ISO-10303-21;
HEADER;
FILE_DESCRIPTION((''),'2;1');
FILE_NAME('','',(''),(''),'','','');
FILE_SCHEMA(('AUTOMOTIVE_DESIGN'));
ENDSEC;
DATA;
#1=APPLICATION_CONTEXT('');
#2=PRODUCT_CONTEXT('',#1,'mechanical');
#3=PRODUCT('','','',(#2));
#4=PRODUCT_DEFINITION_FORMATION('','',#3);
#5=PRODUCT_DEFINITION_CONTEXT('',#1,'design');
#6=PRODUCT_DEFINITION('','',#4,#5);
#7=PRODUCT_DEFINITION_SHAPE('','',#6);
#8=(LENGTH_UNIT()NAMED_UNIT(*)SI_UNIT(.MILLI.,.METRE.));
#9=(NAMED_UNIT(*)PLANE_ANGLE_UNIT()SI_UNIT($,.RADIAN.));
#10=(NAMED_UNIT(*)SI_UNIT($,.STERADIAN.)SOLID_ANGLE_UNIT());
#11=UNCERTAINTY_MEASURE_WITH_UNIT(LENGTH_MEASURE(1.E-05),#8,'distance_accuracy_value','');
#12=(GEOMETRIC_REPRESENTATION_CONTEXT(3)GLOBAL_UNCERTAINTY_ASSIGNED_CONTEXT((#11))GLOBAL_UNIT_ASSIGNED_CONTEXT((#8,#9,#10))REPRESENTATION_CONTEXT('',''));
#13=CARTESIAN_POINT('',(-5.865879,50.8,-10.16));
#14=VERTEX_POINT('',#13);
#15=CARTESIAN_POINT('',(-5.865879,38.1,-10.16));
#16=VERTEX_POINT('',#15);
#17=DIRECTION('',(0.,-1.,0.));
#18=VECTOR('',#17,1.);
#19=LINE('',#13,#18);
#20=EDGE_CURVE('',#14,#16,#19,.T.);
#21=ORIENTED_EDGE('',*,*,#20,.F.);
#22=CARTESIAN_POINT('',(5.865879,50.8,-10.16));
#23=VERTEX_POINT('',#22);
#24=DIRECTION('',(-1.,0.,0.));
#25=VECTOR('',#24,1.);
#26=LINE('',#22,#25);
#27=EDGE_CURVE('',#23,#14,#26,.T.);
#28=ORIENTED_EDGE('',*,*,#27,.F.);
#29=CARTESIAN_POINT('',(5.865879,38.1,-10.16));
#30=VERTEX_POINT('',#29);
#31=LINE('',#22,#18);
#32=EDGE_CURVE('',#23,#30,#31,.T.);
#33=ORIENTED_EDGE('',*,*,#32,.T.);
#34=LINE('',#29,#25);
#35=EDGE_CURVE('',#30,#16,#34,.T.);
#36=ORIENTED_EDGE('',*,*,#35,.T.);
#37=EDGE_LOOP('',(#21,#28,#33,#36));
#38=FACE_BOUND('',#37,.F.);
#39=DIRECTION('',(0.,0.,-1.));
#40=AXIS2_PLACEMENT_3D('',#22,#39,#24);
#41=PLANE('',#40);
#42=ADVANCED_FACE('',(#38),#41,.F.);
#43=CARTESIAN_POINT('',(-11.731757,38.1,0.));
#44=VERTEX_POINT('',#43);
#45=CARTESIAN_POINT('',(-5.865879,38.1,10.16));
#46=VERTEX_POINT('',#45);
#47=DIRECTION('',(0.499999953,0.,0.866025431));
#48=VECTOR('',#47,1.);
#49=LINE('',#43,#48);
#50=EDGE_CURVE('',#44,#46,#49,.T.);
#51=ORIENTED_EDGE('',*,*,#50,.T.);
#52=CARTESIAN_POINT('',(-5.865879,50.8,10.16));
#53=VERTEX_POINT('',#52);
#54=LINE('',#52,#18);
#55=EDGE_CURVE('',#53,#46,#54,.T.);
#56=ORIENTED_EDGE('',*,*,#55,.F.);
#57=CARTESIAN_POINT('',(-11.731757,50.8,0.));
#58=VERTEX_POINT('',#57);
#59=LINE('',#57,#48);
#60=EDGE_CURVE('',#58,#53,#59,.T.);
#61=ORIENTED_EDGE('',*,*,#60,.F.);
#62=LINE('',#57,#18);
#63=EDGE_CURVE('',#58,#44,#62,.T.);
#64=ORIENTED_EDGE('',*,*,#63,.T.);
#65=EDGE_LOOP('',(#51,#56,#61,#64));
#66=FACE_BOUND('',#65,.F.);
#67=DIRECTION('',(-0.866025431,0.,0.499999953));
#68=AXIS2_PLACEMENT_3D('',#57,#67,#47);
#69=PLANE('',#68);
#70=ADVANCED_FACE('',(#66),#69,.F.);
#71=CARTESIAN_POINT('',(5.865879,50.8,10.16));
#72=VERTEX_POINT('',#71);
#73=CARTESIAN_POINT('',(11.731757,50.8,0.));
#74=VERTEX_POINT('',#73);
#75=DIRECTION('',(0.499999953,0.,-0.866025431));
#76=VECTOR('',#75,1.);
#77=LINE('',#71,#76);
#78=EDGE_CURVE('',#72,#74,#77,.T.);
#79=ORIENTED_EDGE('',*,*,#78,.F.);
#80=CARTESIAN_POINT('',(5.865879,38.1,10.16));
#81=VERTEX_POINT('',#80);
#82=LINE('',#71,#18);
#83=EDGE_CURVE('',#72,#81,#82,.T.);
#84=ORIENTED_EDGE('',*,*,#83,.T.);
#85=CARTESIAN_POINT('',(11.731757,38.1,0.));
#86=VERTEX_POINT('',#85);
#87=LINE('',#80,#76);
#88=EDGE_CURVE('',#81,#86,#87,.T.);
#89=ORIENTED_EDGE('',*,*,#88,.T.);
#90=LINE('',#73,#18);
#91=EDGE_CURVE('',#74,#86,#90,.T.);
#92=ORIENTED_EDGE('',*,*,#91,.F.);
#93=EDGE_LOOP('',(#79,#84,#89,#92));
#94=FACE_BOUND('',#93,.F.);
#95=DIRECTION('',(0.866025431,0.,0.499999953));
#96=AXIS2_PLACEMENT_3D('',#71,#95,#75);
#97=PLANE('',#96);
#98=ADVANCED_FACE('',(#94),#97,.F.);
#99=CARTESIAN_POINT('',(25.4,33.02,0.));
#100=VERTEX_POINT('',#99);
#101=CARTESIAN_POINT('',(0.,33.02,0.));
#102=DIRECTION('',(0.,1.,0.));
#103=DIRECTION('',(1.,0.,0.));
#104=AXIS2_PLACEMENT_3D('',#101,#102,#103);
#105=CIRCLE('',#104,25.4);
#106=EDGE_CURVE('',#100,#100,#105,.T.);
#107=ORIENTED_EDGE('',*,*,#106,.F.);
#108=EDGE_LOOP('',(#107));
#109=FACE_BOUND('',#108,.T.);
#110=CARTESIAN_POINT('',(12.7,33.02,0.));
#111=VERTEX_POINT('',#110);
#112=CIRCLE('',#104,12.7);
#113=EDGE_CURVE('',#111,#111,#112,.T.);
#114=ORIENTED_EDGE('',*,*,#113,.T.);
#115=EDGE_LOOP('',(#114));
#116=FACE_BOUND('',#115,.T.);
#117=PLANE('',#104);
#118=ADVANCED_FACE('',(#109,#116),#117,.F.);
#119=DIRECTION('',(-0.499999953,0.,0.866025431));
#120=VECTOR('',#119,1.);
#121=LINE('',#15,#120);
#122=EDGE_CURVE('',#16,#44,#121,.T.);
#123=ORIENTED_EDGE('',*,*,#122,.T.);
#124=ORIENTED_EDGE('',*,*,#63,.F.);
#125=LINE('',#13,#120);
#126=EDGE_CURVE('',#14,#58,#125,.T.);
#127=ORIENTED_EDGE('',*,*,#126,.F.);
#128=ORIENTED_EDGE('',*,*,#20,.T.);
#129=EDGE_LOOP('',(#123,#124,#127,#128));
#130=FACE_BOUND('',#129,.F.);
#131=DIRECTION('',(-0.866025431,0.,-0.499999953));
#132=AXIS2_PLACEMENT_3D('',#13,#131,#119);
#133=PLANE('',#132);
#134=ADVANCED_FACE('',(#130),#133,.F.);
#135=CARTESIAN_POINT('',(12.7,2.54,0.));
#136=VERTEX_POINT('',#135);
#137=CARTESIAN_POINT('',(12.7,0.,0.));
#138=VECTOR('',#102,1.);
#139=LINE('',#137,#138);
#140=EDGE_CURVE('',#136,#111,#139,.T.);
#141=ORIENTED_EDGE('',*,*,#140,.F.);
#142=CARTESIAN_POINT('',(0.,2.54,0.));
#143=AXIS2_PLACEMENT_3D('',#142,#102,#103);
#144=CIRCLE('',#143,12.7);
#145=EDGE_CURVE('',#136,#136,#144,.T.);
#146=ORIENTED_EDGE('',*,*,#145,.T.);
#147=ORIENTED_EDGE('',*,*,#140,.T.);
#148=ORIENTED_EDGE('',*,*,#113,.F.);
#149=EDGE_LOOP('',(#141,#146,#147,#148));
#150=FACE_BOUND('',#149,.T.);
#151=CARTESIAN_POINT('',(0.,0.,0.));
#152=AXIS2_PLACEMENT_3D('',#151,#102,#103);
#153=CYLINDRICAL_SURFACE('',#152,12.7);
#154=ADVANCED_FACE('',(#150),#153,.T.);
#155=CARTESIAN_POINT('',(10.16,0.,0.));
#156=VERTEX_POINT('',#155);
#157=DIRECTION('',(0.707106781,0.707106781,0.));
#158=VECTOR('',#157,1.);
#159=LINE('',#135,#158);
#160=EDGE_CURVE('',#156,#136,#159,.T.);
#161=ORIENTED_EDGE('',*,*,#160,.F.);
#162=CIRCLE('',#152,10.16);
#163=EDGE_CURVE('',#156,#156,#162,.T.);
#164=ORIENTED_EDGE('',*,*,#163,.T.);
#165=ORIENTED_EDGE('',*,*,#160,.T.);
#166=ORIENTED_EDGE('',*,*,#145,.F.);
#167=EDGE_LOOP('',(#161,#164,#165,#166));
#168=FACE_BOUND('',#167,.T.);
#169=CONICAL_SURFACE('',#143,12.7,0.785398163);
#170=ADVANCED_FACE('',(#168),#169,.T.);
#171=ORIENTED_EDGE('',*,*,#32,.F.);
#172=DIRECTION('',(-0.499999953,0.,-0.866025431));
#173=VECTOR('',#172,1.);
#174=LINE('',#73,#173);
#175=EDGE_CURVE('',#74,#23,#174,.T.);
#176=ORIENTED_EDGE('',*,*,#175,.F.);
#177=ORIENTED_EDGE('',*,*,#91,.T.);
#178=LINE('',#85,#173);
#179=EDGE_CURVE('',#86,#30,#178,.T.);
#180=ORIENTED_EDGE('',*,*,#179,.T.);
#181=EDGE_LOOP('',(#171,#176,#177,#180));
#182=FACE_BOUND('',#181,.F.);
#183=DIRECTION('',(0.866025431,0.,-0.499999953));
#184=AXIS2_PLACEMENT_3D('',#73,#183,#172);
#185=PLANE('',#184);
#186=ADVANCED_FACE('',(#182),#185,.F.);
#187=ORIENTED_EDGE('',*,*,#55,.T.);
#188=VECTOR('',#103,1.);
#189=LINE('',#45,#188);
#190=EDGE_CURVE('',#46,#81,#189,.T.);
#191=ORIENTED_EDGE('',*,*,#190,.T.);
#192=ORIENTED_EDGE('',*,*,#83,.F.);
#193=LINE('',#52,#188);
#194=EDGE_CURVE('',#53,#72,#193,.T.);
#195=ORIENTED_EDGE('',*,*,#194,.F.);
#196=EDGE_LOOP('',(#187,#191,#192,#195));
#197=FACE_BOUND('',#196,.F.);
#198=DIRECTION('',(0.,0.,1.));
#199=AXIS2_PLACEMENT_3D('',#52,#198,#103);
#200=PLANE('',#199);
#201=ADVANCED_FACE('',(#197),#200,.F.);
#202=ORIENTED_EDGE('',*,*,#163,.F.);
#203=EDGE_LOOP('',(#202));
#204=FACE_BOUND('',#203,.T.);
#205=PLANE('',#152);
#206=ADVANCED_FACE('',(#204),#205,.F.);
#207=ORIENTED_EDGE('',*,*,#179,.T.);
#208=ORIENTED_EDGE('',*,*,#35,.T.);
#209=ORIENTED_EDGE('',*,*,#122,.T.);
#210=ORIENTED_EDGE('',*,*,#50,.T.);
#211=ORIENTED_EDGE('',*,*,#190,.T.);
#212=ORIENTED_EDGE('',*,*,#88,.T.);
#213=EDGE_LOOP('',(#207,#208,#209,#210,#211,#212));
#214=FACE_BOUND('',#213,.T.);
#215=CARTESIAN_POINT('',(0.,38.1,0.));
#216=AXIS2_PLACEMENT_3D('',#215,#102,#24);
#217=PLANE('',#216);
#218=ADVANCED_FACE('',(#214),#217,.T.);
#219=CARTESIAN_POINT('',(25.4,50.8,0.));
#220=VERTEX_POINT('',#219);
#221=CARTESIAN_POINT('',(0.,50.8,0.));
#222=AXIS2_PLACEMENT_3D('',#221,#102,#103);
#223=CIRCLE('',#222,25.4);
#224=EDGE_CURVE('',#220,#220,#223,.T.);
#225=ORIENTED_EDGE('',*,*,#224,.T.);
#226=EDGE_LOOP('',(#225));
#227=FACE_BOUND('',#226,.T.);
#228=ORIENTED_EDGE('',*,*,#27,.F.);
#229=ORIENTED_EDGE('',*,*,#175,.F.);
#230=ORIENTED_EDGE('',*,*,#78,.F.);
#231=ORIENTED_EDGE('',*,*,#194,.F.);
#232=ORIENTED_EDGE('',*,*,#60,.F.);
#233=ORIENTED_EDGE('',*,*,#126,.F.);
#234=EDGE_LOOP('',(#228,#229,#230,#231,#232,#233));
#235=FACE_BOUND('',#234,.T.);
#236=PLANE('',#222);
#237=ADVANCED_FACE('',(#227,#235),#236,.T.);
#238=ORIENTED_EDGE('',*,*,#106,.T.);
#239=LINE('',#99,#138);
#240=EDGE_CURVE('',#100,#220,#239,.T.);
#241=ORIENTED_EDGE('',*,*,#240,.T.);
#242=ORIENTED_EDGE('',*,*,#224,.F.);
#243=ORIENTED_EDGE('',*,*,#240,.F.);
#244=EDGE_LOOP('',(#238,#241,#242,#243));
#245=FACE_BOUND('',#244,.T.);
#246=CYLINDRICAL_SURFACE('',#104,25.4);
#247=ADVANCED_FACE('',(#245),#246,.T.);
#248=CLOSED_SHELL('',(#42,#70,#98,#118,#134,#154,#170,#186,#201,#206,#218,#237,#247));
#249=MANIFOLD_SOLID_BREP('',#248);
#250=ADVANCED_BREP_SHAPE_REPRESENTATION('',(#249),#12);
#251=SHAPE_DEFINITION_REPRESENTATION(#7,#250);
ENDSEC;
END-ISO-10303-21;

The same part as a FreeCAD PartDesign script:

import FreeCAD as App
import Part
import Sketcher
from FreeCAD import Vector
Q = App.Units.Quantity


def edges_at(feature, points):
    """Names of the edges that pass closest to the given points."""
    edges = feature.Shape.Edges
    near = lambda p: min(range(len(edges)), key=lambda i: edges[i].distToShape(Part.Vertex(*p))[0])
    return sorted({f"Edge{near(p) + 1}" for p in points})

doc = App.newDocument("Part")
params = doc.addObject("Spreadsheet::Sheet", "Params")
for row, (alias, value) in enumerate([
    ("sketch1_width", "1 in"),
    ("sketch1_height", "2 in"),
    ("sketch1_height2", "1.3 in"),
    ("revolution_angle", "360 deg"),
    ("chamfer_size", "0.1 in"),
    ("pocket1_length", "0.5 in"),
], start=1):
    params.set(f"A{row}", alias)
    params.set(f"B{row}", "=" + value)
    params.setAlias(f"B{row}", alias)

body = doc.addObject("PartDesign::Body", "Body")

# Sketch on XY plane
sketch1 = doc.addObject("Sketcher::SketchObject", "Sketch")
body.addObject(sketch1)
sketch1.AttachmentSupport = (doc.XY_Plane, [""])
sketch1.MapMode = "FlatFace"
sketch1.addGeometry(Part.LineSegment(Vector(0, 51, 0), Vector(0, 0, 0)), False)
sketch1.addGeometry(Part.LineSegment(Vector(0, 0, 0), Vector(13, 0, 0)), False)
sketch1.addGeometry(Part.LineSegment(Vector(13, 0, 0), Vector(13, 33, 0)), False)
sketch1.addGeometry(Part.LineSegment(Vector(13, 33, 0), Vector(25, 33, 0)), False)
sketch1.addGeometry(Part.LineSegment(Vector(25, 33, 0), Vector(25, 51, 0)), False)
sketch1.addGeometry(Part.LineSegment(Vector(25, 51, 0), Vector(0, 51, 0)), False)
sketch1.addConstraint(Sketcher.Constraint("Coincident", 0, 2, 1, 1))
sketch1.addConstraint(Sketcher.Constraint("Coincident", 1, 2, 2, 1))
sketch1.addConstraint(Sketcher.Constraint("Coincident", 2, 2, 3, 1))
sketch1.addConstraint(Sketcher.Constraint("Coincident", 3, 2, 4, 1))
sketch1.addConstraint(Sketcher.Constraint("Coincident", 4, 2, 5, 1))
sketch1.addConstraint(Sketcher.Constraint("Coincident", 5, 2, 0, 1))
sketch1.addConstraint(Sketcher.Constraint("Vertical", 0))
sketch1.addConstraint(Sketcher.Constraint("Horizontal", 1))
sketch1.addConstraint(Sketcher.Constraint("Vertical", 2))
sketch1.addConstraint(Sketcher.Constraint("Horizontal", 3))
sketch1.addConstraint(Sketcher.Constraint("Vertical", 4))
sketch1.addConstraint(Sketcher.Constraint("Horizontal", 5))
sketch1.addConstraint(Sketcher.Constraint("Coincident", 0, 2, -1, 1))
sketch1.addConstraint(Sketcher.Constraint("Equal", 1, 3))
sketch1.addConstraint(Sketcher.Constraint("DistanceX", 5, 2, 5, 1, Q("1 in")))
sketch1.addConstraint(Sketcher.Constraint("DistanceY", 0, 2, 0, 1, Q("2 in")))
sketch1.addConstraint(Sketcher.Constraint("DistanceY", 2, 1, 2, 2, Q("1.3 in")))
sketch1.setExpression("Constraints[14]", "Params.sketch1_width")
sketch1.setExpression("Constraints[15]", "Params.sketch1_height")
sketch1.setExpression("Constraints[16]", "Params.sketch1_height2")
revolution = doc.addObject("PartDesign::Revolution", "Revolution")
body.addObject(revolution)
revolution.Profile = sketch1
revolution.ReferenceAxis = (sketch1, ["V_Axis"])
revolution.setExpression("Angle", "Params.revolution_angle")
doc.recompute()

chamfer = doc.addObject("PartDesign::Chamfer", "Chamfer")
body.addObject(chamfer)
chamfer.Base = (revolution, edges_at(revolution, [(-12.7, 0, 0)]))
chamfer.setExpression("Size", "Params.chamfer_size")

# Sketch on XZ plane
sketch2 = doc.addObject("Sketcher::SketchObject", "Sketch001")
body.addObject(sketch2)
sketch2.AttachmentSupport = (doc.XZ_Plane, [""])
sketch2.MapMode = "FlatFace"
sketch2.AttachmentOffset = App.Placement(Vector(0, 0, -2 * 25.4), App.Rotation())
sketch2.addGeometry(Part.LineSegment(Vector(6, 10, 0), Vector(12, 0, 0)), False)
sketch2.addGeometry(Part.LineSegment(Vector(12, 0, 0), Vector(6, -10, 0)), False)
sketch2.addGeometry(Part.LineSegment(Vector(6, -10, 0), Vector(-6, -10, 0)), False)
sketch2.addGeometry(Part.LineSegment(Vector(-6, -10, 0), Vector(-12, 0, 0)), False)
sketch2.addGeometry(Part.LineSegment(Vector(-12, 0, 0), Vector(-6, 10, 0)), False)
sketch2.addGeometry(Part.LineSegment(Vector(-6, 10, 0), Vector(6, 10, 0)), False)
sketch2.addConstraint(Sketcher.Constraint("Coincident", 0, 2, 1, 1))
sketch2.addConstraint(Sketcher.Constraint("Coincident", 1, 2, 2, 1))
sketch2.addConstraint(Sketcher.Constraint("Coincident", 2, 2, 3, 1))
sketch2.addConstraint(Sketcher.Constraint("Coincident", 3, 2, 4, 1))
sketch2.addConstraint(Sketcher.Constraint("Coincident", 4, 2, 5, 1))
sketch2.addConstraint(Sketcher.Constraint("Coincident", 5, 2, 0, 1))
sketch2.addConstraint(Sketcher.Constraint("Horizontal", 2))
sketch2.addConstraint(Sketcher.Constraint("Horizontal", 5))
sketch2.addConstraint(Sketcher.Constraint("Symmetric", 0, 2, 3, 2, -1, 1))
sketch2.addConstraint(Sketcher.Constraint("Symmetric", 1, 2, 4, 2, -1, 1))
sketch2.addConstraint(Sketcher.Constraint("PointOnObject", 0, 2, -1))
sketch2.addConstraint(Sketcher.Constraint("Parallel", 0, 3))
sketch2.addConstraint(Sketcher.Constraint("Vertical", 2, 2, 4, 2))
sketch2.addConstraint(Sketcher.Constraint("Angle", 0, Q("-60.000003 deg")))
sketch2.addConstraint(Sketcher.Constraint("DistanceY", 1, 2, -1, 1, Q("0.4 in")))
sketch2.addConstraint(Sketcher.Constraint("DistanceX", 2, 2, 2, 1, 11.731758))
pocket1 = doc.addObject("PartDesign::Pocket", "Pocket")
body.addObject(pocket1)
pocket1.Profile = sketch2
pocket1.setExpression("Length", "Params.pocket1_length")
pocket1.Reversed = True

doc.recompute()
